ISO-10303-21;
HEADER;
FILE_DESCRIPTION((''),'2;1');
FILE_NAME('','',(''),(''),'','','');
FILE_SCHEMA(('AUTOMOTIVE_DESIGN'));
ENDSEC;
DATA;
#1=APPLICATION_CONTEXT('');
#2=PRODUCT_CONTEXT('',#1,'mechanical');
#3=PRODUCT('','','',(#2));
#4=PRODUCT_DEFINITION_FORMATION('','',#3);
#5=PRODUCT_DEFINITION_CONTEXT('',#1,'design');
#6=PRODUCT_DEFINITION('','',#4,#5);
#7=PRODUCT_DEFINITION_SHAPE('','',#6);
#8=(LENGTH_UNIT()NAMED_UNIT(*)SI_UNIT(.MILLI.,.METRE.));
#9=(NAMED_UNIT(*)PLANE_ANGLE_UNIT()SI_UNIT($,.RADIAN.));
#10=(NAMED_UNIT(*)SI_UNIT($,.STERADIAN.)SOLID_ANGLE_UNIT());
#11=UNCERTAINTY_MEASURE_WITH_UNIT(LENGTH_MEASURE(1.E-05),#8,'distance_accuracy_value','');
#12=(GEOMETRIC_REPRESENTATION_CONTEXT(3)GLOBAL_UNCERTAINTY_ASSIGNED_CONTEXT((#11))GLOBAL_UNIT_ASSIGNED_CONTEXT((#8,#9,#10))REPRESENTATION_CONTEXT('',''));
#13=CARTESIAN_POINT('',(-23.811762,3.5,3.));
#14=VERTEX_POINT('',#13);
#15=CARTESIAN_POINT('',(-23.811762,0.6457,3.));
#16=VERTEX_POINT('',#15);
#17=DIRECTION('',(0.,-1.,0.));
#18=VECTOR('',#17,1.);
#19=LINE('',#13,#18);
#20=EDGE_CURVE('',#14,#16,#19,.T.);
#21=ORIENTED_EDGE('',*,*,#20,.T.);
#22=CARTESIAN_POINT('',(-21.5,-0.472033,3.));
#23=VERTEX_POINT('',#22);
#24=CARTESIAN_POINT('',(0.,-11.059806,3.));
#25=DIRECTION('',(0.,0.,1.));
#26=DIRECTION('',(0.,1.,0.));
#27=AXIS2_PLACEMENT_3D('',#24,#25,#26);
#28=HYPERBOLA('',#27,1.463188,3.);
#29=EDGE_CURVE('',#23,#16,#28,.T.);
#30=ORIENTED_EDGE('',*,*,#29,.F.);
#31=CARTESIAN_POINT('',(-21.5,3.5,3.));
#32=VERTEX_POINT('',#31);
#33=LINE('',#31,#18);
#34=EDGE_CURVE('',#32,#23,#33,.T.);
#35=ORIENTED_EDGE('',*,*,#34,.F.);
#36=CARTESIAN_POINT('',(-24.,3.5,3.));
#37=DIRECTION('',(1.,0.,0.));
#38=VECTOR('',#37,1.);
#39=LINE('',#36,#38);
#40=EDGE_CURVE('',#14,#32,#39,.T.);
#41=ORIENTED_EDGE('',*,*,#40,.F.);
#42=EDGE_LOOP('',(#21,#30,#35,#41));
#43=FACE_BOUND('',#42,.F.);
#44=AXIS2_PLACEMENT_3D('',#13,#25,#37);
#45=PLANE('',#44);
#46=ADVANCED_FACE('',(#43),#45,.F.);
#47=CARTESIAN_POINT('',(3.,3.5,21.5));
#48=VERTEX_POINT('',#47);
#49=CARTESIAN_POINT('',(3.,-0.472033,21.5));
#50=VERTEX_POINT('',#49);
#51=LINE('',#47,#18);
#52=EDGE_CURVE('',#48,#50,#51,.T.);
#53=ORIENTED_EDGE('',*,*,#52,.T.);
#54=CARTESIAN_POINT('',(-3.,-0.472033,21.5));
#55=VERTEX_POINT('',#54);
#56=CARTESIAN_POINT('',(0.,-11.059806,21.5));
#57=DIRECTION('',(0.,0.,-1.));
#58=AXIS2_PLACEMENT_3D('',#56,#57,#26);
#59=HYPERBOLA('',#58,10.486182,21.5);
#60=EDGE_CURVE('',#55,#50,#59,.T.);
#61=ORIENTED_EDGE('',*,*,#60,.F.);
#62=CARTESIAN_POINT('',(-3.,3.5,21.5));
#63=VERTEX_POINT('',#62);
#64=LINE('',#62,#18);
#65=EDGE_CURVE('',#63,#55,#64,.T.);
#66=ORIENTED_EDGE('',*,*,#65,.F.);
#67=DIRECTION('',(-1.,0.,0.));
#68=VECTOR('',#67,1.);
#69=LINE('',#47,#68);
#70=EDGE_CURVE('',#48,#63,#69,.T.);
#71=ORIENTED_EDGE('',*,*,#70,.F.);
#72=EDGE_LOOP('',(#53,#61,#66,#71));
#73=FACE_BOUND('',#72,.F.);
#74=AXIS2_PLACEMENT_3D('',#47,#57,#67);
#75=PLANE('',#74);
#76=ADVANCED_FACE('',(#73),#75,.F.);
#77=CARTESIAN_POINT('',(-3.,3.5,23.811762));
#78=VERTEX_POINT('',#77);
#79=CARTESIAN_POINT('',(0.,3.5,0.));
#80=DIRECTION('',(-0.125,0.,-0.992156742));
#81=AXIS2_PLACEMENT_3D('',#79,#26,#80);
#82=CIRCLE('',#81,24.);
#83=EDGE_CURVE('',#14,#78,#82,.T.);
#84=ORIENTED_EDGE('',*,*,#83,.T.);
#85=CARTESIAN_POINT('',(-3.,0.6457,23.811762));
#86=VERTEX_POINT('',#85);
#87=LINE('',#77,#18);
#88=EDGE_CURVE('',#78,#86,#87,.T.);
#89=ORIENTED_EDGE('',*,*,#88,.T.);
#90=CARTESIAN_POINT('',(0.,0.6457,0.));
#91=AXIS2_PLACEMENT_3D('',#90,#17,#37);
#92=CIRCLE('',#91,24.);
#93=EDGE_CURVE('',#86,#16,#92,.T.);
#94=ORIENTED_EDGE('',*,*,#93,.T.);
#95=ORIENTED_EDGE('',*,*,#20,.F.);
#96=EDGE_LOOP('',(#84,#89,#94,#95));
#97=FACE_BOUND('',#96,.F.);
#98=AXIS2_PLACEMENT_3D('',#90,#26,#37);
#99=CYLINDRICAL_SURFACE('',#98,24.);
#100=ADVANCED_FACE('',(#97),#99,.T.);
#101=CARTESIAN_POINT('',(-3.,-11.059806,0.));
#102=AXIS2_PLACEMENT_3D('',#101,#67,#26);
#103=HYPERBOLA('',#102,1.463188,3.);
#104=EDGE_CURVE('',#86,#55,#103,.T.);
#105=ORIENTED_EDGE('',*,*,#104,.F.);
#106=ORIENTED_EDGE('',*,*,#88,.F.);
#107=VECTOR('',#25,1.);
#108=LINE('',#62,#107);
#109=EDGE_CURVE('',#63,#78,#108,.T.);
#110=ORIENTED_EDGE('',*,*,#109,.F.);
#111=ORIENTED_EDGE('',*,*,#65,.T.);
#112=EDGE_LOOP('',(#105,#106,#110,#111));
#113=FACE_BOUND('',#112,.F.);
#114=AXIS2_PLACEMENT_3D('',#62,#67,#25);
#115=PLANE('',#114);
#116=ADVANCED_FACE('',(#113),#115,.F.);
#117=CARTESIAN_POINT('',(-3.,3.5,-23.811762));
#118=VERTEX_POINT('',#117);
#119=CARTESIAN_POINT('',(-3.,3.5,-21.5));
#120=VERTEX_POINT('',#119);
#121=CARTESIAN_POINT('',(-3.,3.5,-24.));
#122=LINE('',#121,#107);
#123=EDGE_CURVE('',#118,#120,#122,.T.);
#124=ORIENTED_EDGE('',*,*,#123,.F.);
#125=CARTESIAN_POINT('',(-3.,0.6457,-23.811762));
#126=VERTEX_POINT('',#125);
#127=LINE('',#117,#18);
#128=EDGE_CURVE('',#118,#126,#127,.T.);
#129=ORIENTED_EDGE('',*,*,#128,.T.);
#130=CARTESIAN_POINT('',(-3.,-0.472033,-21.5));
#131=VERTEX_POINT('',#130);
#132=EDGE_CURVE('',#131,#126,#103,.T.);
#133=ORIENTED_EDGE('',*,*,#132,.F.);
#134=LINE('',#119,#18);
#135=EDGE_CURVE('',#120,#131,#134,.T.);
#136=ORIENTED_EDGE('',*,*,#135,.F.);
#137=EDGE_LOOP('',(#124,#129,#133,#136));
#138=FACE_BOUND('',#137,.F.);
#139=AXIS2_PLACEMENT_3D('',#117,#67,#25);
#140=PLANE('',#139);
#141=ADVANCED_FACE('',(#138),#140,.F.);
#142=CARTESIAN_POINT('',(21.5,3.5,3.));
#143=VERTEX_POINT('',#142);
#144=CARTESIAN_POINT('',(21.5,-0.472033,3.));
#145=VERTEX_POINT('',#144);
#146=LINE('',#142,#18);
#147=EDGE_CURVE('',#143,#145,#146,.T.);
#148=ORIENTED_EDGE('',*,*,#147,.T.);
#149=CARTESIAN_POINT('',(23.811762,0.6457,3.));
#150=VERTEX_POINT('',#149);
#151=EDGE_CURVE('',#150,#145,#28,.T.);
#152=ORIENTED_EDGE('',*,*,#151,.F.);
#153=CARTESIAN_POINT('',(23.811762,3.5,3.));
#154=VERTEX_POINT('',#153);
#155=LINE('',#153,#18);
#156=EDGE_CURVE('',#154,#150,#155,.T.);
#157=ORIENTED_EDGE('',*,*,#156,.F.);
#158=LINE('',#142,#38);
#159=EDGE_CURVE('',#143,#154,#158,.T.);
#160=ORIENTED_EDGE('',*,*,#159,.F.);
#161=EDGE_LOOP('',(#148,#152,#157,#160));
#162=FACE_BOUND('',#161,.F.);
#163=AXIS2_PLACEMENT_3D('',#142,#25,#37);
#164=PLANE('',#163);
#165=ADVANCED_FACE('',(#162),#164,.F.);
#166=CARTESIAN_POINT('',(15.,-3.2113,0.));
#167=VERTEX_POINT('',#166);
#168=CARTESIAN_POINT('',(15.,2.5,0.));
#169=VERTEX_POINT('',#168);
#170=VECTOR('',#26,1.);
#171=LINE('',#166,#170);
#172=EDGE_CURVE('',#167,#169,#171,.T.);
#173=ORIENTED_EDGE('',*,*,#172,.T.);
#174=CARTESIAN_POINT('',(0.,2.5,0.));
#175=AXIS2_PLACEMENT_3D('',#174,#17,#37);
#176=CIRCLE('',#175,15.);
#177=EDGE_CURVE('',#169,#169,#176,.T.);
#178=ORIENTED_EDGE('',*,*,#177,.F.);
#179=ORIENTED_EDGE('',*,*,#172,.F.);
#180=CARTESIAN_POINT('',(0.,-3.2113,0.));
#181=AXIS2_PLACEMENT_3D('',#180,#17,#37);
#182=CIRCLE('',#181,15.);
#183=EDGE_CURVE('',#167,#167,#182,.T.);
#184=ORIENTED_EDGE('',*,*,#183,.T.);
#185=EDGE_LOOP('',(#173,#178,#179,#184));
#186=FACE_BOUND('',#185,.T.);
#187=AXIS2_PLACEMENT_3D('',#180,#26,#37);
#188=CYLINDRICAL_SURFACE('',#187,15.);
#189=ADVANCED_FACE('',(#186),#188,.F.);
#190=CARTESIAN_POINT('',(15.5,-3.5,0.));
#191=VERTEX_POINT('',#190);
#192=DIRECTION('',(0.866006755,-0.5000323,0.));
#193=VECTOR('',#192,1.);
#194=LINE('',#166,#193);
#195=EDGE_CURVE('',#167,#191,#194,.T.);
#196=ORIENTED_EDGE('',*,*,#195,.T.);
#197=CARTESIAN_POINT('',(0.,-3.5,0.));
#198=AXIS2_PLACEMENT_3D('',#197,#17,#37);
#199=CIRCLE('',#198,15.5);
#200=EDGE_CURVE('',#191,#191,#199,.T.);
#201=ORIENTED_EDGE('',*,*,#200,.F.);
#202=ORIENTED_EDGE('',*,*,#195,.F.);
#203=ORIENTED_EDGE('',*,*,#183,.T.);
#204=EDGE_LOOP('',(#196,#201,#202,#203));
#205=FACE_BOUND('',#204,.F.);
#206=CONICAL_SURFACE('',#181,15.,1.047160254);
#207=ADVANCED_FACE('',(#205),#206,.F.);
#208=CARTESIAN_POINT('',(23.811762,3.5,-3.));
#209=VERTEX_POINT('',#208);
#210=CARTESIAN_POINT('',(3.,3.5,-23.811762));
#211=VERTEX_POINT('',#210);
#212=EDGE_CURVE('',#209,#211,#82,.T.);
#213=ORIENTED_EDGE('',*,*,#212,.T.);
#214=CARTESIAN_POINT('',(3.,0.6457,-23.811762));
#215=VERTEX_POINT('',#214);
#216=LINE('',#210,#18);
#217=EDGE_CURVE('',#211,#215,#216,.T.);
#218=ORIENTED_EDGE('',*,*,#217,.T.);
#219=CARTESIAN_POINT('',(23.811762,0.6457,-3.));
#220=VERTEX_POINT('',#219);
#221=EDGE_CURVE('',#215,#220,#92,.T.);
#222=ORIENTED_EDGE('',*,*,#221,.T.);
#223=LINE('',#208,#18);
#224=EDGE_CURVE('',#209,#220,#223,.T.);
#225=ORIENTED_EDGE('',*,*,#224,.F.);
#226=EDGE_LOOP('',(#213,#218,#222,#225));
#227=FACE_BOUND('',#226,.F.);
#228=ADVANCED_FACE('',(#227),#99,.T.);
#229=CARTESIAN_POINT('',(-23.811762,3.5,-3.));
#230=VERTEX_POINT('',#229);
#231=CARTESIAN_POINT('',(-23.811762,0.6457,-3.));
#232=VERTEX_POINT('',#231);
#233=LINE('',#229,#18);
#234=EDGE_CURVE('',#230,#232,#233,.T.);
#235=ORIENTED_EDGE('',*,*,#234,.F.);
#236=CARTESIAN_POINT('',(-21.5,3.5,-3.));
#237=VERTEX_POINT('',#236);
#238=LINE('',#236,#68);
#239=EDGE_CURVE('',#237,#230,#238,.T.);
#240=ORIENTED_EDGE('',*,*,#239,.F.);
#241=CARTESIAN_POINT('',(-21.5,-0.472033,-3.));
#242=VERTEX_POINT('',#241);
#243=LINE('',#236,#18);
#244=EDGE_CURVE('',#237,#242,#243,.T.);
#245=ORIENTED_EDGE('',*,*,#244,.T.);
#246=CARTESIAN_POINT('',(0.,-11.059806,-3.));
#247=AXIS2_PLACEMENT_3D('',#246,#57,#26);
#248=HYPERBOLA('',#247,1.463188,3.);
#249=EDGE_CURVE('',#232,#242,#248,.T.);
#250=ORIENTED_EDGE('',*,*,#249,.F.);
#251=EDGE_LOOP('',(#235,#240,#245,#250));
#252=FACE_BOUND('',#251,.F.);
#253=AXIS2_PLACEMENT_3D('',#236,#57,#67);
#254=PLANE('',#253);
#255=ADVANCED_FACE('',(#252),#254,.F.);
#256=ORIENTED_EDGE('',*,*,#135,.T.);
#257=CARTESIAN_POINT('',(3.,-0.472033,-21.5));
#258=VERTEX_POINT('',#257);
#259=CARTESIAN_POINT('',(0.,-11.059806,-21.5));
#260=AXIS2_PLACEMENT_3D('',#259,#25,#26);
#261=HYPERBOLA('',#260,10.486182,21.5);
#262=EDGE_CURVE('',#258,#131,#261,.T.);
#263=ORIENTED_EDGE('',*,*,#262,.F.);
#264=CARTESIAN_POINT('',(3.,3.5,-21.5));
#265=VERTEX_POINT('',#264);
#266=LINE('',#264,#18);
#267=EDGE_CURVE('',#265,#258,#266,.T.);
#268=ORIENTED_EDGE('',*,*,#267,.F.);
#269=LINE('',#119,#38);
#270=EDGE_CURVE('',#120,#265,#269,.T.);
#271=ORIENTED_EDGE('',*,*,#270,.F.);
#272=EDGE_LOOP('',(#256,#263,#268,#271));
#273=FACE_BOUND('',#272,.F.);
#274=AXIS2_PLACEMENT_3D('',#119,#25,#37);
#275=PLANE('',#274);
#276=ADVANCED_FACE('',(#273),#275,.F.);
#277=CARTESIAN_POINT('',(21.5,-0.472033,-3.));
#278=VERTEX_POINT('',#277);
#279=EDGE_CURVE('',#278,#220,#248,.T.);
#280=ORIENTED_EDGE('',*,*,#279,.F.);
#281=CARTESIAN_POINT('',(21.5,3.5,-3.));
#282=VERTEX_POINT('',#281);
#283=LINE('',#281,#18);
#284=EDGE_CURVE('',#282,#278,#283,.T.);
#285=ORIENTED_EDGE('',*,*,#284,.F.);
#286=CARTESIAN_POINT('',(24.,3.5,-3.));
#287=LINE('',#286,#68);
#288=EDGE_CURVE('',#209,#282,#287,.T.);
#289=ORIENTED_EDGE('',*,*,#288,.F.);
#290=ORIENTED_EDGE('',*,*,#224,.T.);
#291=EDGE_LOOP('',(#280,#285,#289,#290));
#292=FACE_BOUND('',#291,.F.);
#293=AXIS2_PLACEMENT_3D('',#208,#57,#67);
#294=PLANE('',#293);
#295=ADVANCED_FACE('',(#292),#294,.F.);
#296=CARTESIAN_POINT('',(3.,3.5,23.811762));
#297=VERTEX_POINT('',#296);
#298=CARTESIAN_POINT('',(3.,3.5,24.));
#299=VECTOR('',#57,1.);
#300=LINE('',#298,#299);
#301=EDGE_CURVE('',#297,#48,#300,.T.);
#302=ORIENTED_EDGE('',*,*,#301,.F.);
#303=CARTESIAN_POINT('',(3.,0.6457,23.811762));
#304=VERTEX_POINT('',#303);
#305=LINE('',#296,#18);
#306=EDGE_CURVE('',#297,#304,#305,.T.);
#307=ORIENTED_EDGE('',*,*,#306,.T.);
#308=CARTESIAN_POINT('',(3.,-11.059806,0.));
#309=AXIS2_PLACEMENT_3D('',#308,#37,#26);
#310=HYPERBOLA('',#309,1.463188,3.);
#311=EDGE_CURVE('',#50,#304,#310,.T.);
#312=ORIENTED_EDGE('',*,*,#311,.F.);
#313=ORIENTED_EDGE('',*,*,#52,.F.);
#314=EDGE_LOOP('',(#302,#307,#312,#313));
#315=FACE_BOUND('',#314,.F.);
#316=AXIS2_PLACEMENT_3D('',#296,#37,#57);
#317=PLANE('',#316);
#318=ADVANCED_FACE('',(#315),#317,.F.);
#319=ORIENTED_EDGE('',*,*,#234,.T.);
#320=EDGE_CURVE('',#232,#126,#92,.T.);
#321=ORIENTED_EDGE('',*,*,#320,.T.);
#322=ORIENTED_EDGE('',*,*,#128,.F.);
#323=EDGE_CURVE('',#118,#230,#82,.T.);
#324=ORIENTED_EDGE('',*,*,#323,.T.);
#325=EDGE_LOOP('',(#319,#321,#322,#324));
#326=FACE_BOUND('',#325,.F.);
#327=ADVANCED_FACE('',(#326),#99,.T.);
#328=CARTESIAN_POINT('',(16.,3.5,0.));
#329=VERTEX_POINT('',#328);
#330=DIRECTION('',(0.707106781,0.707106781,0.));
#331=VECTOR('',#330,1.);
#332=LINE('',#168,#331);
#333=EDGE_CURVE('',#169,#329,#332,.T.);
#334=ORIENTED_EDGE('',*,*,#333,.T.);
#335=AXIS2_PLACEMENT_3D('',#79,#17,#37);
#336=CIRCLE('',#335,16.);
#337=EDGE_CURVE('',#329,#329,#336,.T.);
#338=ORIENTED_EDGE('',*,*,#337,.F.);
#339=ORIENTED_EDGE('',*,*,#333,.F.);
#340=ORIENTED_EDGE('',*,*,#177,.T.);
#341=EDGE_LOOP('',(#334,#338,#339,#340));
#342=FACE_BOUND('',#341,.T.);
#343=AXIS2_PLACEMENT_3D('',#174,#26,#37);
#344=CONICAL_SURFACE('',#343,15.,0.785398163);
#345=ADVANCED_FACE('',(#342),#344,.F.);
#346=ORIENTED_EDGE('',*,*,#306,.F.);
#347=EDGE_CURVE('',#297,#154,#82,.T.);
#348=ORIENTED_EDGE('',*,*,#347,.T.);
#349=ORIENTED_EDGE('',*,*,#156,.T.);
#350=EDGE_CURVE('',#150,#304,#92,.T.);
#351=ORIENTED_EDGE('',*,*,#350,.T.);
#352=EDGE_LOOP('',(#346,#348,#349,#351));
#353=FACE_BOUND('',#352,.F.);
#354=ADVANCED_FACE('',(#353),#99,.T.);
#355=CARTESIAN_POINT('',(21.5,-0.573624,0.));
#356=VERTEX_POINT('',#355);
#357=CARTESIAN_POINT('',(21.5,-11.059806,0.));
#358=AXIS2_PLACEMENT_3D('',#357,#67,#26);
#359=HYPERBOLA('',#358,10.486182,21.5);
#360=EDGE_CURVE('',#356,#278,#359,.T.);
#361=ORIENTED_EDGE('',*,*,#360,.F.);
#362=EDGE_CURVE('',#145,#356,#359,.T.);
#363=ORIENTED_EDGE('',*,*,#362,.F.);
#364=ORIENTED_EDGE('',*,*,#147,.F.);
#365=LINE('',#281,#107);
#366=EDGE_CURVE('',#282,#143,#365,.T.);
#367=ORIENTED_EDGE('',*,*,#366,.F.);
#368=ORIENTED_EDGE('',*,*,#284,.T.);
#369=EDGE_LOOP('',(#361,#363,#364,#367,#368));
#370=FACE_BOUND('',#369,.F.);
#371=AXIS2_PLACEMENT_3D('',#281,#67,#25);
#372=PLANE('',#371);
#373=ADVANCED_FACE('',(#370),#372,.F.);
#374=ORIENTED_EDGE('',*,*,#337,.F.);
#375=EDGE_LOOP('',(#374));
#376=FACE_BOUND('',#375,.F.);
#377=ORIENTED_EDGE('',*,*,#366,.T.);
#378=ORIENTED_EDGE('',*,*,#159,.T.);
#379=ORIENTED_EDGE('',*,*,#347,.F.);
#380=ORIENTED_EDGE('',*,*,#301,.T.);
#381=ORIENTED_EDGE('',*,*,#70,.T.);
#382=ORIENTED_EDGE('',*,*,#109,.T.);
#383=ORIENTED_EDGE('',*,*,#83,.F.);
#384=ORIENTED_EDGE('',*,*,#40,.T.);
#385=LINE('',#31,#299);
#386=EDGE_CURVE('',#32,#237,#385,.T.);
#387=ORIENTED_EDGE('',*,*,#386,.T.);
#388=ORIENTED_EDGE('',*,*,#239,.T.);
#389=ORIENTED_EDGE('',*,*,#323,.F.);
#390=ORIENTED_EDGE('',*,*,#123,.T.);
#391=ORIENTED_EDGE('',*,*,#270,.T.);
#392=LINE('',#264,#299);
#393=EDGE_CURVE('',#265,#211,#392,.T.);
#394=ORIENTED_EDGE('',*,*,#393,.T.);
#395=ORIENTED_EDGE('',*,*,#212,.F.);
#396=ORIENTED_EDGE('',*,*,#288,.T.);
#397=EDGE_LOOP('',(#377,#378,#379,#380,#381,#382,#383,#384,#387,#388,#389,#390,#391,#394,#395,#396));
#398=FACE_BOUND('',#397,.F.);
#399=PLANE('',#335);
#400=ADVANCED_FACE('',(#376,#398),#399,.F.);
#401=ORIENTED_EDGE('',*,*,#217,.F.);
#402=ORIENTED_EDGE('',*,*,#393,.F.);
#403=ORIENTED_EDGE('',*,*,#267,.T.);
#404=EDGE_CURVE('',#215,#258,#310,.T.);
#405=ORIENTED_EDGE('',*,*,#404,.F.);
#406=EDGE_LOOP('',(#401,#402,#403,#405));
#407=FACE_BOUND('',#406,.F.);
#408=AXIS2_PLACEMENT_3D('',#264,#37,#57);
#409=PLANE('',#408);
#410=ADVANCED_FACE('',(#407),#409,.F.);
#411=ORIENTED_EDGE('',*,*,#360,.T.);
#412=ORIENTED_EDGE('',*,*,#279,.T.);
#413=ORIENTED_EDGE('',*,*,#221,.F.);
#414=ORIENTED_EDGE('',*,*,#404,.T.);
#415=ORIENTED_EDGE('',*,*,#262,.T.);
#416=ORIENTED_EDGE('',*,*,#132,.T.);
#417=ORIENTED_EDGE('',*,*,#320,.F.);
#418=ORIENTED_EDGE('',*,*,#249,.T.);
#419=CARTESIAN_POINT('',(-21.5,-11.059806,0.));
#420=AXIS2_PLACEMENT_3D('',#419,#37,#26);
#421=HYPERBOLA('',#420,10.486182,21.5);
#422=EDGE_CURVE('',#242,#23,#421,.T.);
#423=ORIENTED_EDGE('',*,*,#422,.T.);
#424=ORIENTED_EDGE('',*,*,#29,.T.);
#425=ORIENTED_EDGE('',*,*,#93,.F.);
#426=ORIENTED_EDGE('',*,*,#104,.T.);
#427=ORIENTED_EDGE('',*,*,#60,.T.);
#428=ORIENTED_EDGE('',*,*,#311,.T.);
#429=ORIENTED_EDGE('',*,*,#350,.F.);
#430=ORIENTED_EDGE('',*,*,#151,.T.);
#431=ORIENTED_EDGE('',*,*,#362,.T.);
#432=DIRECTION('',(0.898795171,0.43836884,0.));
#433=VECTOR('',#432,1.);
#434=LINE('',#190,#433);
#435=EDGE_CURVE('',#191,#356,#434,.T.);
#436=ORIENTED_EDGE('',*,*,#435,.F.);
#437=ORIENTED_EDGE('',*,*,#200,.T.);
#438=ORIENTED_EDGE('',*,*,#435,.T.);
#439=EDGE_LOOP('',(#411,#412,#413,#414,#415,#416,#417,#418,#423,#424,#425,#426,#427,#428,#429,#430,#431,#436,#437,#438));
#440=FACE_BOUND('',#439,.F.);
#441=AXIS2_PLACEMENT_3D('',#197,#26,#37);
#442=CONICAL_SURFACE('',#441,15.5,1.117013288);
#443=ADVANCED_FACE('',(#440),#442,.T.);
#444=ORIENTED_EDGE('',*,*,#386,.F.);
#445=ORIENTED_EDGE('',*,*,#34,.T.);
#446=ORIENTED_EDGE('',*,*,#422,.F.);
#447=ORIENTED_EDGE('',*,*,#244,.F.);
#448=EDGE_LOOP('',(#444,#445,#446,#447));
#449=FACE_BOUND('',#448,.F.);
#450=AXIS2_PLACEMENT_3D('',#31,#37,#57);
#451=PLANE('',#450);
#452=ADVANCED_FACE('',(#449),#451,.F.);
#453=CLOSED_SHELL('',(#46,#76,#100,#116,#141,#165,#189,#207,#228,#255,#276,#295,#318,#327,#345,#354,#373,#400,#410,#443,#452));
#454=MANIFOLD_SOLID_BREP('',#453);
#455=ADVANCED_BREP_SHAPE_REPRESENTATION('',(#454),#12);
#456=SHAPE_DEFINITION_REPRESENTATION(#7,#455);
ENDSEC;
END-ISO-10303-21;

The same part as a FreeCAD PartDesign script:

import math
import FreeCAD as App
import Part
import Sketcher
Q = App.Units.Quantity


def add_polygon(sketch, points):
    """Adds a closed chain of lines whose ends are joined by coincident constraints."""
    first, n = sketch.GeometryCount, len(points)
    for a, b in zip(points, points[1:] + points[:1]):
        sketch.addGeometry(Part.LineSegment(App.Vector(*a, 0), App.Vector(*b, 0)), False)
    for i in range(n):
        sketch.addConstraint(Sketcher.Constraint("Coincident", first + i, 2, first + (i + 1) % n, 1))

doc = App.newDocument("Part")
body = doc.addObject("PartDesign::Body", "Body")

sketch1 = doc.addObject("Sketcher::SketchObject", "Sketch")
body.addObject(sketch1)
sketch1.AttachmentSupport = (doc.XY_Plane, [""])
sketch1.MapMode = "FlatFace"
add_polygon(sketch1, [(15, 2.5), (15, -3.2), (15.5, -3.5), (24, 0.6), (24, 3.5), (16, 3.5)])
sketch1.addConstraint([
    Sketcher.Constraint("Vertical", 0),
    Sketcher.Constraint("Vertical", 3),
    Sketcher.Constraint("Horizontal", 4),
    Sketcher.Constraint("Angle", 2, Q("25.9999 deg")),
    Sketcher.Constraint("DistanceY", 1, 2, 3, 2, 7.0),
    Sketcher.Constraint("DistanceX", 0, 2, 4, 2, 1.0),
    Sketcher.Constraint("DistanceY", 5, 2, 4, 2, 1.0),
    Sketcher.Constraint("DistanceX", 4, 2, 4, 1, 8.0),
    Sketcher.Constraint("DistanceX", -1, 1, 0, 2, 15.0),
    Sketcher.Constraint("DistanceX", -1, 1, 1, 2, 15.5),
    Sketcher.Constraint("DistanceY", 1, 2, -1, 1, 3.5),
    Sketcher.Constraint("DistanceY", 0, 2, 0, 1, 5.7113),
])
revolution = doc.addObject("PartDesign::Revolution", "Revolution")
body.addObject(revolution)
revolution.Profile = sketch1
revolution.ReferenceAxis = (sketch1, ["V_Axis"])
revolution.Angle = 360

sketch2 = doc.addObject("Sketcher::SketchObject", "Sketch001")
body.addObject(sketch2)
sketch2.AttachmentSupport = (doc.XZ_Plane, [""])
sketch2.MapMode = "FlatFace"
sketch2.AttachmentOffset = App.Placement(App.Vector(0, 0, -3.5), App.Rotation())
sketch2.addGeometry([
    Part.LineSegment(App.Vector(3, -21.5, 0), App.Vector(3, -23.8, 0)),
    Part.ArcOfCircle(Part.Circle(App.Vector(0, 0, 0), App.Vector(0, 0, 1), 24), math.radians(-97.18), math.radians(-82.82)),
    Part.LineSegment(App.Vector(-3, -23.8, 0), App.Vector(-3, -21.5, 0)),
    Part.LineSegment(App.Vector(-3, -21.5, 0), App.Vector(3, -21.5, 0)),
], False)
sketch2.addConstraint([
    Sketcher.Constraint("Coincident", 0, 2, 1, 2),
    Sketcher.Constraint("Coincident", 1, 1, 2, 1),
    Sketcher.Constraint("Coincident", 2, 2, 3, 1),
    Sketcher.Constraint("Coincident", 3, 2, 0, 1),
    Sketcher.Constraint("Vertical", 0),
    Sketcher.Constraint("Vertical", 2),
    Sketcher.Constraint("Horizontal", 3),
    Sketcher.Constraint("Coincident", 1, 3, -1, 1),
    Sketcher.Constraint("Horizontal", 0, 2, 1, 1),
    Sketcher.Constraint("DistanceX", 3, 1, 3, 2, 6.0),
    Sketcher.Constraint("Radius", 1, 24.0),
    Sketcher.Constraint("DistanceY", 2, 2, -1, 1, 21.5),
])
pocket1 = doc.addObject("PartDesign::Pocket", "Pocket")
body.addObject(pocket1)
pocket1.Profile = sketch2
pocket1.Type = "ThroughAll"
pocket1.Reversed = True
doc.recompute()

polarpattern = doc.addObject("PartDesign::PolarPattern", "PolarPattern")
body.addObject(polarpattern)
polarpattern.Originals = [pocket1]
polarpattern.Axis = (doc.Y_Axis, [""])
polarpattern.Angle = 360
polarpattern.Occurrences = 4
body.Tip = polarpattern

doc.recompute()
